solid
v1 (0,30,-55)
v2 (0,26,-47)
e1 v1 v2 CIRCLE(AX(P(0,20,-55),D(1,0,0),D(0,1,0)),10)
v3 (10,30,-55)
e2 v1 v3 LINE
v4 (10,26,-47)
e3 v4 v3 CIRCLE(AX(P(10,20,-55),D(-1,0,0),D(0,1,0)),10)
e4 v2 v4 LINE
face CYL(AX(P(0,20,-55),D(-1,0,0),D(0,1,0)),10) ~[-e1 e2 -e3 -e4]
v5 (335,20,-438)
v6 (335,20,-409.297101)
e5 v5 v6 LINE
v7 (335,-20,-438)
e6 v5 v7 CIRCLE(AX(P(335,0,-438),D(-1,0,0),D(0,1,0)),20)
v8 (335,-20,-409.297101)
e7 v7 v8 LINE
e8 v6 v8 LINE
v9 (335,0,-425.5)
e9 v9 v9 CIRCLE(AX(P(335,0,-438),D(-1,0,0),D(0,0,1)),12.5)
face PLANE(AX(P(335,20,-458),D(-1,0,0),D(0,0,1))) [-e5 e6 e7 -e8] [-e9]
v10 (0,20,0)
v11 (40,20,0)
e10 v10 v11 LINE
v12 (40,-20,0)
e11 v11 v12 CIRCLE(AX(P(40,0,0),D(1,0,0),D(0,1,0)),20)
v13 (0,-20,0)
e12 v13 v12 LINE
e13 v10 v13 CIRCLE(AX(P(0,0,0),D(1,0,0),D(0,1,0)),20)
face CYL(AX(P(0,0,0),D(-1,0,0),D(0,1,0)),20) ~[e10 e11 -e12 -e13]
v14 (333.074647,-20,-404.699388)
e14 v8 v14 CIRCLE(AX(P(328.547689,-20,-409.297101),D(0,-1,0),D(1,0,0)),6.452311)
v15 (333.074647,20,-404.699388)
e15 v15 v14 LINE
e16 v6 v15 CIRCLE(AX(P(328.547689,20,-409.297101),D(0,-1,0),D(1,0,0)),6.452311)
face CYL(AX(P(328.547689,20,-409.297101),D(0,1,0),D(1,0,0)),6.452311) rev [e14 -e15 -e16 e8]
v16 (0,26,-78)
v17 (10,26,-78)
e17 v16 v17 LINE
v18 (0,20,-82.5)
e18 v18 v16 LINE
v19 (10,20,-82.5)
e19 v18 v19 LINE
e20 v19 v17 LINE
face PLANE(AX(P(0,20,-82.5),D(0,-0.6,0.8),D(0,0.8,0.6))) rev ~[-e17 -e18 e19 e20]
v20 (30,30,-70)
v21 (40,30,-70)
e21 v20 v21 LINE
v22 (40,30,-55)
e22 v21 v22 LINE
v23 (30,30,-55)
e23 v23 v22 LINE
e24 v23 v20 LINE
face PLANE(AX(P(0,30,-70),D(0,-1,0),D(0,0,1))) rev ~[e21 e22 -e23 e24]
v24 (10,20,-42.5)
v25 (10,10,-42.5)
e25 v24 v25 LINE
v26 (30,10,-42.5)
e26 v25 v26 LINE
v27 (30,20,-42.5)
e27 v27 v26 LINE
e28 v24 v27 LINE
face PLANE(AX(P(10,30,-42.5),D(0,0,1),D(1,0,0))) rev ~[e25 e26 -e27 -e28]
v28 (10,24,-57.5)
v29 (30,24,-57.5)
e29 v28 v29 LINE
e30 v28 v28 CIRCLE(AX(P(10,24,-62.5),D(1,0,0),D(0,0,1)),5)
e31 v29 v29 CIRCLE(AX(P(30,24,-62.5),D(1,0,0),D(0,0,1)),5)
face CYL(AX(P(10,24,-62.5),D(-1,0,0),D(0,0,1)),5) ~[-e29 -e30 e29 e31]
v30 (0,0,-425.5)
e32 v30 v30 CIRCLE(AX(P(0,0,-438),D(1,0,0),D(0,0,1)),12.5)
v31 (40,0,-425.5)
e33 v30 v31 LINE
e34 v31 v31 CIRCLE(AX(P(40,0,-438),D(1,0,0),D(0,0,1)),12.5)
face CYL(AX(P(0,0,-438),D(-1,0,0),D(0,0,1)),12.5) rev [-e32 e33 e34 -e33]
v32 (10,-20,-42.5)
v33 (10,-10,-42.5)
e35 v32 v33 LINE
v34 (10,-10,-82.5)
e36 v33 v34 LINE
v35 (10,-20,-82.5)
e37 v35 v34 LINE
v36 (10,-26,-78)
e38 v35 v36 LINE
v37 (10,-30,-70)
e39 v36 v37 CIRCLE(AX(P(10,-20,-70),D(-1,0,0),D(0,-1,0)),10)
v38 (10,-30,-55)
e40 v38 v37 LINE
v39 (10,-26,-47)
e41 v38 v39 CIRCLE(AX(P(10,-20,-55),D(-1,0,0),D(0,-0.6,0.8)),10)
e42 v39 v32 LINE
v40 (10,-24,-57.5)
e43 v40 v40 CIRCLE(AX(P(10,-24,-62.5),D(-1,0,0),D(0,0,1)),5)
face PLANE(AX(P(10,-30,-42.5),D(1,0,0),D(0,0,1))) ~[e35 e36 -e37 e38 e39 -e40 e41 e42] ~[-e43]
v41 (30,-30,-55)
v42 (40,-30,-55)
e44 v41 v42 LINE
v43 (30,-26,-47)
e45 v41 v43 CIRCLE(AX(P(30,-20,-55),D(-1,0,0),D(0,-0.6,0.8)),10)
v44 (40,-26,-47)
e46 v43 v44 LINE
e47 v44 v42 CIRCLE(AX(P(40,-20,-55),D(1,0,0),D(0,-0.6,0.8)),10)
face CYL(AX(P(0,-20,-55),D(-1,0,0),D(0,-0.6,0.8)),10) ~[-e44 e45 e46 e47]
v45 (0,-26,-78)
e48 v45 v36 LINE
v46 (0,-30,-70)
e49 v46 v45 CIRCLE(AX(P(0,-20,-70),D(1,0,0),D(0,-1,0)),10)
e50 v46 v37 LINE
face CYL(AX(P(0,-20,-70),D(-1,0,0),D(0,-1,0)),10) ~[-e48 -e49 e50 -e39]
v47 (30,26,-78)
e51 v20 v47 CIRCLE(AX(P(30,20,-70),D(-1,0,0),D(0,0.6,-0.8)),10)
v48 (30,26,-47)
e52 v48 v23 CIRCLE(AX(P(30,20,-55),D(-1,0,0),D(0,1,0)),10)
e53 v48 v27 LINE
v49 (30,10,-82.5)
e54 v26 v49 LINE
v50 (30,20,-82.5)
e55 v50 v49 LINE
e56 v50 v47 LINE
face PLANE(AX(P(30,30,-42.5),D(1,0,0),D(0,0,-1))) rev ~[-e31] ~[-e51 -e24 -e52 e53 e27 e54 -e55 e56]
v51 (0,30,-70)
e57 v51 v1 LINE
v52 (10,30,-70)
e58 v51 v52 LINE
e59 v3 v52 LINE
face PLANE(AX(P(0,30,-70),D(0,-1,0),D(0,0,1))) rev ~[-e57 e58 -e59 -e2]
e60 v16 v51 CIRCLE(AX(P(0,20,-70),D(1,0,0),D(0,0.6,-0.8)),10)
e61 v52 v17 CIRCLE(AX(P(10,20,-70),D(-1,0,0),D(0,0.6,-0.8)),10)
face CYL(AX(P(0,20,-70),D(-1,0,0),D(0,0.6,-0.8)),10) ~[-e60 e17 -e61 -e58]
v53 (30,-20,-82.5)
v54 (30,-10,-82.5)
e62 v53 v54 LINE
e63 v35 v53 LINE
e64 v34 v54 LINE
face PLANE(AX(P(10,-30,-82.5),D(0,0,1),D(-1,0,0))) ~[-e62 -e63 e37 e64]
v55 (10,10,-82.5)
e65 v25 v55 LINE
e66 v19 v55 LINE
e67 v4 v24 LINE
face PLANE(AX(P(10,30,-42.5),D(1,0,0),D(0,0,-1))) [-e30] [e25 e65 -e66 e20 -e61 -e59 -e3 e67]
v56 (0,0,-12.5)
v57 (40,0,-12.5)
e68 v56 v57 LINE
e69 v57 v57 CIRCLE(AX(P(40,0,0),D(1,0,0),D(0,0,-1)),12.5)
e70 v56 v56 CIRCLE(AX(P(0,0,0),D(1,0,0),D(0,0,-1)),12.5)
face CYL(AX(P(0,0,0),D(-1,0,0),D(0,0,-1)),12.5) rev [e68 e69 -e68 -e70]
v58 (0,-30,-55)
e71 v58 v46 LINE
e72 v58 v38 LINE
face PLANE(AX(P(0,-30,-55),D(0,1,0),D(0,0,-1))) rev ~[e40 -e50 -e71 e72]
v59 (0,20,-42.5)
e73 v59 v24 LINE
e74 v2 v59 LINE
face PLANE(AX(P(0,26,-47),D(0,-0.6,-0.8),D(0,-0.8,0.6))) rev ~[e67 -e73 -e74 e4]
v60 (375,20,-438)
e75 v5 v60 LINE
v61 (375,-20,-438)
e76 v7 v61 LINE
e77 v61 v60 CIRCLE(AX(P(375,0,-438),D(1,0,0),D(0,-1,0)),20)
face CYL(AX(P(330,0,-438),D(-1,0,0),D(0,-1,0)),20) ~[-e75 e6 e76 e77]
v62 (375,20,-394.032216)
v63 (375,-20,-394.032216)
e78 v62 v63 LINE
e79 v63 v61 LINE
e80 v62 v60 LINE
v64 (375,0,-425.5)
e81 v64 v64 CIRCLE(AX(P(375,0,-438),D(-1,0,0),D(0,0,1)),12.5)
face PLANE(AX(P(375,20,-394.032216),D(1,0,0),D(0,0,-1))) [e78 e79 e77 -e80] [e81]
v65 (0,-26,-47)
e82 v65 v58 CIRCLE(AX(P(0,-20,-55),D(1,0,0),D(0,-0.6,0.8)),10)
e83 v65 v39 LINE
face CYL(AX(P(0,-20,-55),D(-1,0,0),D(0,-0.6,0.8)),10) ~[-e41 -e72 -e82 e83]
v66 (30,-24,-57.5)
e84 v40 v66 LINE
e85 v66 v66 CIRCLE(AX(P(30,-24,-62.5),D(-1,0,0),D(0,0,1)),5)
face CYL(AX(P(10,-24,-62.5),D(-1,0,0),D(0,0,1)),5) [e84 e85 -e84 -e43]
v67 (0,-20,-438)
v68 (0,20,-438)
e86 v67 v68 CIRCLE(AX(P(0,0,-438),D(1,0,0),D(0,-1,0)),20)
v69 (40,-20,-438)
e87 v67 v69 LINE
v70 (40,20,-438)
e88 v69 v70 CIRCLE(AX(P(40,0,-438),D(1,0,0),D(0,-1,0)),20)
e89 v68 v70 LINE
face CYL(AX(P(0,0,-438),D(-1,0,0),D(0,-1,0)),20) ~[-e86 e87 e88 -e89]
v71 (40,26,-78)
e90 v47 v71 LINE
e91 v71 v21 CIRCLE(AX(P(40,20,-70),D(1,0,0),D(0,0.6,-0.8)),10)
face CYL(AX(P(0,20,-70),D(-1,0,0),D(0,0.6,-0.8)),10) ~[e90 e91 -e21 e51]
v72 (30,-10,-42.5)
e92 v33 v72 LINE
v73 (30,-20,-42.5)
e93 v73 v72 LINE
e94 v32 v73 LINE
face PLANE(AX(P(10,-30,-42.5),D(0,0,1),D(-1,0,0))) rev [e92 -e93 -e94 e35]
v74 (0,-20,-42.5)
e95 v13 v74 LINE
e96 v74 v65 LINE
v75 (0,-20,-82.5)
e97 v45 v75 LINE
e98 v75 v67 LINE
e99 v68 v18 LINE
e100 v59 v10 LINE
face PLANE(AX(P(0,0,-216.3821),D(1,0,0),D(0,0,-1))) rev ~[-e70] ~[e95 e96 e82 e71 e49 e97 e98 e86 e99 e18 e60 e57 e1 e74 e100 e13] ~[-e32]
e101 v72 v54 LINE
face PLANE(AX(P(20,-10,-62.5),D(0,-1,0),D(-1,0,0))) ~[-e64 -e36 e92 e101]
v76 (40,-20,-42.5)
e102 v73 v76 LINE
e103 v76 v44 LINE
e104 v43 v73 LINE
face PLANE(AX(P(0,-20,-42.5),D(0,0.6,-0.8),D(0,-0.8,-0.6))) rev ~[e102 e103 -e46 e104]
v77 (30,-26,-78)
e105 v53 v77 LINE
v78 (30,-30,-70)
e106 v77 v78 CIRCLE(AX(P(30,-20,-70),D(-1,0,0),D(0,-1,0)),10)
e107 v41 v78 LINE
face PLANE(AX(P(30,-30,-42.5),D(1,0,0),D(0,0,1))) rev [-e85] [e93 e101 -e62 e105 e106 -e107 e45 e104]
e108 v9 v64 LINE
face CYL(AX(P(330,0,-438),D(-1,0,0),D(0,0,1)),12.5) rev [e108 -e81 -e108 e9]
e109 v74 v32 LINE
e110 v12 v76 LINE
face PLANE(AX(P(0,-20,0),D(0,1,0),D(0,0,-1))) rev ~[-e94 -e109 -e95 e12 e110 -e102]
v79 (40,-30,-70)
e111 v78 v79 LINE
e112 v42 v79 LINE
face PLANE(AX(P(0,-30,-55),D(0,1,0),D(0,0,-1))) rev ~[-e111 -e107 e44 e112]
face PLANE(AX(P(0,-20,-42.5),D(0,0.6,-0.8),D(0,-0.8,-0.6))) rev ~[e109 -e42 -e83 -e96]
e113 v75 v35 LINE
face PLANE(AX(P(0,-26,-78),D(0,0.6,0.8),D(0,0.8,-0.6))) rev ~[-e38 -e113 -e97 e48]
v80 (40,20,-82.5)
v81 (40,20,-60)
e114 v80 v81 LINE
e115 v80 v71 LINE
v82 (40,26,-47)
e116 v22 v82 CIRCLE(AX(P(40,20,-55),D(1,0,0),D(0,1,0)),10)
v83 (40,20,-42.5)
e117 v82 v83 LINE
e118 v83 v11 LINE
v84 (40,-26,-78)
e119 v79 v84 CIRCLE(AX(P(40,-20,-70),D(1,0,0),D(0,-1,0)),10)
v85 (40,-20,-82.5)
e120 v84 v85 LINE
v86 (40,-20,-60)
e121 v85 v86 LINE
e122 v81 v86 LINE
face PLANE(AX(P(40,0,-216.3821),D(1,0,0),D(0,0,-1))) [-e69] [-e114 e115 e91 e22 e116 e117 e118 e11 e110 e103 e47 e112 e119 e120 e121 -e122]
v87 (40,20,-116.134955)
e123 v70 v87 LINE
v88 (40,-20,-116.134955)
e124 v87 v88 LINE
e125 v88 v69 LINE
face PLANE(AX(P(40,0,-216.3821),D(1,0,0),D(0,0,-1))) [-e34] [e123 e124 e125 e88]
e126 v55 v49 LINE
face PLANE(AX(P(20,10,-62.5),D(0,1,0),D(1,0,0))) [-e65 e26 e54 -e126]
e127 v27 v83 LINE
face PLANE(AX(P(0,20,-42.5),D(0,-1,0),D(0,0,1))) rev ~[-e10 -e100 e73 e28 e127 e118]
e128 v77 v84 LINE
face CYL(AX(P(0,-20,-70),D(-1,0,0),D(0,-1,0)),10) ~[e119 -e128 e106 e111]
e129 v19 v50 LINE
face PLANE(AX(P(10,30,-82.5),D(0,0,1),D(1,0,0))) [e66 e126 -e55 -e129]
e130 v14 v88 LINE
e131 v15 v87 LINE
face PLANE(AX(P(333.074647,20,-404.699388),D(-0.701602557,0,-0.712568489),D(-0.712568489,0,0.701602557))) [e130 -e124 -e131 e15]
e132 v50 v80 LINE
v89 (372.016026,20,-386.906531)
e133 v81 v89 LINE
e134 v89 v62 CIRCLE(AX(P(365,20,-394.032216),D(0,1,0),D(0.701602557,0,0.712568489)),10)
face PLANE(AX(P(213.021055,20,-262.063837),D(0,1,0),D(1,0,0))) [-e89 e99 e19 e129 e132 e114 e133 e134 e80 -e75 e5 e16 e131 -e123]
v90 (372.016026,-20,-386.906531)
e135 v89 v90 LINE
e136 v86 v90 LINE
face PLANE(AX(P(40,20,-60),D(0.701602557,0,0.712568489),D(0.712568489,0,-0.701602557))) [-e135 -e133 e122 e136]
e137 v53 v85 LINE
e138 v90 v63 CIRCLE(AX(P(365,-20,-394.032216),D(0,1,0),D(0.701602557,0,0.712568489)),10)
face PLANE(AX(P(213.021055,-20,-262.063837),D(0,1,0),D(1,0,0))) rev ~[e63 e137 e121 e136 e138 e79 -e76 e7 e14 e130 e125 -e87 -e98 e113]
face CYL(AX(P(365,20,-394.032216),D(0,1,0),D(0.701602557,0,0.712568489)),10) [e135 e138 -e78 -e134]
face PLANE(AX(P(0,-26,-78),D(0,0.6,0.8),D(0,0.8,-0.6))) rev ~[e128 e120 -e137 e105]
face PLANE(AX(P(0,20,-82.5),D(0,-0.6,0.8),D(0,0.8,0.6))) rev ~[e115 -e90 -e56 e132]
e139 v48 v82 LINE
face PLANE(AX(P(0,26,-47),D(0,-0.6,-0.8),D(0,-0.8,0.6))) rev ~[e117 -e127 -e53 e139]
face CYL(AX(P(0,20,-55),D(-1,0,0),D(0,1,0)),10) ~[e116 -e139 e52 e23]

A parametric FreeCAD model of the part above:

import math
import FreeCAD as App
import Part
import Sketcher
from FreeCAD import Vector

doc = App.newDocument("Part")
body = doc.addObject("PartDesign::Body", "Body")

# Sketch on YZ plane
sketch1 = body.newObject("Sketcher::SketchObject", "Sketch")
sketch1.AttachmentSupport = (doc.getObject("YZ_Plane"), [""])
sketch1.MapMode = "FlatFace"
sketch1.addGeometry([
    Part.ArcOfCircle(Part.Circle(Vector(0, 0, 0), Vector(0, 0, 1), 20), math.radians(0), math.radians(180)),  # 0
    Part.LineSegment(Vector(-20, 0, 0), Vector(-20, -42, 0)),  # 1
    Part.LineSegment(Vector(-20, -42, 0), Vector(-26, -47, 0)),  # 2
    Part.ArcOfCircle(Part.Circle(Vector(-20, -55, 0), Vector(0, 0, 1), 10), math.radians(127), math.radians(180)),  # 3
    Part.LineSegment(Vector(-30, -55, 0), Vector(-30, -70, 0)),  # 4
    Part.ArcOfCircle(Part.Circle(Vector(-20, -70, 0), Vector(0, 0, 1), 10), math.radians(180), math.radians(233)),  # 5
    Part.LineSegment(Vector(-26, -78, 0), Vector(-20, -82, 0)),  # 6
    Part.LineSegment(Vector(-20, -82, 0), Vector(-20, -438, 0)),  # 7
    Part.ArcOfCircle(Part.Circle(Vector(0, -438, 0), Vector(0, 0, 1), 20), math.radians(180), math.radians(360)),  # 8
    Part.LineSegment(Vector(20, -438, 0), Vector(20, -82, 0)),  # 9
    Part.LineSegment(Vector(20, -82, 0), Vector(26, -78, 0)),  # 10
    Part.ArcOfCircle(Part.Circle(Vector(20, -70, 0), Vector(0, 0, 1), 10), math.radians(-53), math.radians(0)),  # 11
    Part.LineSegment(Vector(30, -70, 0), Vector(30, -55, 0)),  # 12
    Part.ArcOfCircle(Part.Circle(Vector(20, -55, 0), Vector(0, 0, 1), 10), math.radians(0), math.radians(53)),  # 13
    Part.LineSegment(Vector(26, -47, 0), Vector(20, -42, 0)),  # 14
    Part.LineSegment(Vector(20, -42, 0), Vector(20, 0, 0)),  # 15
    Part.Circle(Vector(0, 0, 0), Vector(0, 0, 1), 12),  # 16
    Part.Circle(Vector(0, -438, 0), Vector(0, 0, 1), 12),  # 17
], False)
sketch1.addConstraint([
    Sketcher.Constraint("Tangent", 0, 2, 1, 1),
    Sketcher.Constraint("Coincident", 1, 2, 2, 1),
    Sketcher.Constraint("Tangent", 2, 2, 3, 1),
    Sketcher.Constraint("Tangent", 3, 2, 4, 1),
    Sketcher.Constraint("Tangent", 4, 2, 5, 1),
    Sketcher.Constraint("Tangent", 5, 2, 6, 1),
    Sketcher.Constraint("Coincident", 6, 2, 7, 1),
    Sketcher.Constraint("Tangent", 7, 2, 8, 1),
    Sketcher.Constraint("Tangent", 8, 2, 9, 1),
    Sketcher.Constraint("Coincident", 9, 2, 10, 1),
    Sketcher.Constraint("Tangent", 10, 2, 11, 1),
    Sketcher.Constraint("Tangent", 11, 2, 12, 1),
    Sketcher.Constraint("Tangent", 12, 2, 13, 1),
    Sketcher.Constraint("Tangent", 13, 2, 14, 1),
    Sketcher.Constraint("Coincident", 14, 2, 15, 1),
    Sketcher.Constraint("Tangent", 15, 2, 0, 1),
    Sketcher.Constraint("Vertical", 1),
    Sketcher.Constraint("Vertical", 4),
    Sketcher.Constraint("Vertical", 7),
    Sketcher.Constraint("Vertical", 9),
    Sketcher.Constraint("Vertical", 12),
    Sketcher.Constraint("Vertical", 15),
    Sketcher.Constraint("Coincident", 0, 3, -1, 1),
    Sketcher.Constraint("Coincident", 16, 3, -1, 1),
    Sketcher.Constraint("Coincident", 17, 3, 8, 3),
    Sketcher.Constraint("Equal", 3, 5),
    Sketcher.Constraint("Equal", 0, 8),
    Sketcher.Constraint("Equal", 5, 11),
    Sketcher.Constraint("Equal", 11, 13),
    Sketcher.Constraint("Equal", 16, 17),
    Sketcher.Constraint("Symmetric", 5, 3, 11, 3, -2),
    Sketcher.Constraint("Symmetric", 6, 2, 9, 2, -2),
    Sketcher.Constraint("Symmetric", 2, 2, 13, 2, -2),
    Sketcher.Constraint("Parallel", 2, 10),
    Sketcher.Constraint("Vertical", 5, 3, 0, 2),
    Sketcher.Constraint("Diameter", 16, 25.0),
    Sketcher.Constraint("Radius", 0, 20.0),
    Sketcher.Constraint("Radius", 3, 10.0),
    Sketcher.Constraint("DistanceY", 4, 2, 4, 1, 15.0),
    Sketcher.Constraint("DistanceY", 1, 2, 1, 1, 42.5),
    Sketcher.Constraint("DistanceY", 7, 2, 7, 1, 355.5),
    Sketcher.Constraint("DistanceY", 3, 3, -1, 1, 55.0),
])
pad1 = body.newObject("PartDesign::Pad", "Pad")
pad1.Profile = sketch1
pad1.Length = 40

# Sketch on XZ plane
sketch2 = body.newObject("Sketcher::SketchObject", "Sketch001")
sketch2.AttachmentSupport = (doc.getObject("XZ_Plane"), [""])
sketch2.MapMode = "FlatFace"
sketch2.AttachmentOffset = App.Placement(Vector(0, 0, -20), App.Rotation())
sketch2.addGeometry([
    Part.LineSegment(Vector(40, -116.1, 0), Vector(40, -60, 0)),  # 0
    Part.LineSegment(Vector(40, -60, 0), Vector(372, -386.9, 0)),  # 1
    Part.ArcOfCircle(Part.Circle(Vector(365, -394, 0), Vector(0, 0, 1), 10), math.radians(0), math.radians(45)),  # 2
    Part.LineSegment(Vector(375, -394, 0), Vector(375, -458, 0)),  # 3
    Part.LineSegment(Vector(375, -458, 0), Vector(335, -458, 0)),  # 4
    Part.LineSegment(Vector(335, -458, 0), Vector(335, -409.3, 0)),  # 5
    Part.ArcOfCircle(Part.Circle(Vector(328.5, -409.3, 0), Vector(0, 0, 1), 6.5), math.radians(0), math.radians(45)),  # 6
    Part.LineSegment(Vector(333.1, -404.7, 0), Vector(40, -116.1, 0)),  # 7
], False)
sketch2.addConstraint([
    Sketcher.Constraint("Coincident", 0, 2, 1, 1),
    Sketcher.Constraint("Tangent", 1, 2, 2, 2),
    Sketcher.Constraint("Tangent", 2, 1, 3, 1),
    Sketcher.Constraint("Coincident", 3, 2, 4, 1),
    Sketcher.Constraint("Coincident", 4, 2, 5, 1),
    Sketcher.Constraint("Tangent", 5, 2, 6, 1),
    Sketcher.Constraint("Tangent", 6, 2, 7, 1),
    Sketcher.Constraint("Coincident", 7, 2, 0, 1),
    Sketcher.Constraint("Vertical", 0),
    Sketcher.Constraint("Vertical", 3),
    Sketcher.Constraint("Horizontal", 4),
    Sketcher.Constraint("Vertical", 5),
    Sketcher.Constraint("Parallel", 1, 7),
    Sketcher.Constraint("Radius", 2, 10.0),
    Sketcher.Constraint("DistanceX", 4, 2, 4, 1, 40.0),
    Sketcher.Constraint("DistanceX", -1, 1, 2, 3, 365.0),
    Sketcher.Constraint("DistanceX", -1, 1, 0, 2, 40.0),
    Sketcher.Constraint("DistanceY", 0, 2, -1, 1, 60.0),
    Sketcher.Constraint("DistanceY", 3, 2, -1, 1, 458.0),
    Sketcher.Constraint("Radius", 6, 6.452311),
    Sketcher.Constraint("DistanceY", 5, 1, 5, 2, 48.702899),
    Sketcher.Constraint("DistanceY", 0, 1, 0, 2, 56.134955),
])
pad2 = body.newObject("PartDesign::Pad", "Pad001")
pad2.Profile = sketch2
pad2.Length = 40

# Sketch on YZ plane
sketch3 = body.newObject("Sketcher::SketchObject", "Sketch002")
sketch3.AttachmentSupport = (doc.getObject("YZ_Plane"), [""])
sketch3.MapMode = "FlatFace"
sketch3.AttachmentOffset = App.Placement(Vector(0, 0, 375), App.Rotation())
sketch3.addGeometry([
    Part.Circle(Vector(0, -438, 0), Vector(0, 0, 1), 12),  # 0
    Part.LineSegment(Vector(20, -499, 0), Vector(20, -438, 0)),  # 1
    Part.ArcOfCircle(Part.Circle(Vector(0, -438, 0), Vector(0, 0, 1), 20), math.radians(180), math.radians(360)),  # 2
    Part.LineSegment(Vector(-20, -438, 0), Vector(-20, -499, 0)),  # 3
    Part.LineSegment(Vector(-20, -499, 0), Vector(20, -499, 0)),  # 4
], False)
sketch3.addConstraint([
    Sketcher.Constraint("Tangent", 1, 2, 2, 2),
    Sketcher.Constraint("Tangent", 2, 1, 3, 1),
    Sketcher.Constraint("Coincident", 3, 2, 4, 1),
    Sketcher.Constraint("Coincident", 4, 2, 1, 1),
    Sketcher.Constraint("Vertical", 1),
    Sketcher.Constraint("Vertical", 3),
    Sketcher.Constraint("Horizontal", 4),
    Sketcher.Constraint("Coincident", 2, 3, 0, 3),
    Sketcher.Constraint("PointOnObject", 0, 3, -2),
    Sketcher.Constraint("Diameter", 0, 25.0),
    Sketcher.Constraint("Radius", 2, 20.0),
    Sketcher.Constraint("DistanceY", 0, 3, -1, 1, 438.0),
    Sketcher.Constraint("DistanceY", 1, 1, 1, 2, 60.774055),
])
pocket1 = body.newObject("PartDesign::Pocket", "Pocket")
pocket1.Profile = sketch3
pocket1.Type = "ThroughAll"
pocket1.Midplane = True

# Sketch on XZ plane
sketch4 = body.newObject("Sketcher::SketchObject", "Sketch003")
sketch4.AttachmentSupport = (doc.getObject("XZ_Plane"), [""])
sketch4.MapMode = "FlatFace"
sketch4.AttachmentOffset = App.Placement(Vector(0, 0, -30), App.Rotation())
sketch4.addGeometry([
    Part.LineSegment(Vector(10, -82, 0), Vector(10, -42, 0)),
    Part.LineSegment(Vector(10, -42, 0), Vector(30, -42, 0)),
    Part.LineSegment(Vector(30, -42, 0), Vector(30, -82, 0)),
    Part.LineSegment(Vector(30, -82, 0), Vector(10, -82, 0)),
], False)
sketch4.addConstraint([
    Sketcher.Constraint("Coincident", 0, 2, 1, 1),
    Sketcher.Constraint("Coincident", 1, 2, 2, 1),
    Sketcher.Constraint("Coincident", 2, 2, 3, 1),
    Sketcher.Constraint("Coincident", 3, 2, 0, 1),
    Sketcher.Constraint("Vertical", 0),
    Sketcher.Constraint("Horizontal", 1),
    Sketcher.Constraint("Vertical", 2),
    Sketcher.Constraint("Horizontal", 3),
    Sketcher.Constraint("DistanceX", 1, 1, 1, 2, 20.0),
    Sketcher.Constraint("DistanceY", 0, 1, 0, 2, 40.0),
    Sketcher.Constraint("DistanceX", -1, 1, 0, 2, 10.0),
    Sketcher.Constraint("DistanceY", 0, 2, -1, 1, 42.5),
])
pocket2 = body.newObject("PartDesign::Pocket", "Pocket001")
pocket2.Profile = sketch4
pocket2.Length = 20
pocket2.Reversed = True

# Sketch on YZ plane
sketch5 = body.newObject("Sketcher::SketchObject", "Sketch004")
sketch5.AttachmentSupport = (doc.getObject("YZ_Plane"), [""])
sketch5.MapMode = "FlatFace"
sketch5.AttachmentOffset = App.Placement(Vector(0, 0, 10), App.Rotation())
sketch5.addGeometry(Part.Circle(Vector(24, -62, 0), Vector(0, 0, 1), 5), False)
sketch5.addConstraint([
    Sketcher.Constraint("Diameter", 0, 10.0),
    Sketcher.Constraint("DistanceX", -1, 1, 0, 3, 24.0),
    Sketcher.Constraint("DistanceY", 0, 3, -1, 1, 62.5),
])
pad3 = body.newObject("PartDesign::Pad", "Pad002")
pad3.Profile = sketch5
pad3.Length = 20
doc.recompute()

mirrored = body.newObject("PartDesign::Mirrored", "Mirrored")
mirrored.Originals = [pocket2, pad3]
mirrored.MirrorPlane = (doc.getObject("XZ_Plane"), [""])
body.Tip = mirrored

doc.recompute()
